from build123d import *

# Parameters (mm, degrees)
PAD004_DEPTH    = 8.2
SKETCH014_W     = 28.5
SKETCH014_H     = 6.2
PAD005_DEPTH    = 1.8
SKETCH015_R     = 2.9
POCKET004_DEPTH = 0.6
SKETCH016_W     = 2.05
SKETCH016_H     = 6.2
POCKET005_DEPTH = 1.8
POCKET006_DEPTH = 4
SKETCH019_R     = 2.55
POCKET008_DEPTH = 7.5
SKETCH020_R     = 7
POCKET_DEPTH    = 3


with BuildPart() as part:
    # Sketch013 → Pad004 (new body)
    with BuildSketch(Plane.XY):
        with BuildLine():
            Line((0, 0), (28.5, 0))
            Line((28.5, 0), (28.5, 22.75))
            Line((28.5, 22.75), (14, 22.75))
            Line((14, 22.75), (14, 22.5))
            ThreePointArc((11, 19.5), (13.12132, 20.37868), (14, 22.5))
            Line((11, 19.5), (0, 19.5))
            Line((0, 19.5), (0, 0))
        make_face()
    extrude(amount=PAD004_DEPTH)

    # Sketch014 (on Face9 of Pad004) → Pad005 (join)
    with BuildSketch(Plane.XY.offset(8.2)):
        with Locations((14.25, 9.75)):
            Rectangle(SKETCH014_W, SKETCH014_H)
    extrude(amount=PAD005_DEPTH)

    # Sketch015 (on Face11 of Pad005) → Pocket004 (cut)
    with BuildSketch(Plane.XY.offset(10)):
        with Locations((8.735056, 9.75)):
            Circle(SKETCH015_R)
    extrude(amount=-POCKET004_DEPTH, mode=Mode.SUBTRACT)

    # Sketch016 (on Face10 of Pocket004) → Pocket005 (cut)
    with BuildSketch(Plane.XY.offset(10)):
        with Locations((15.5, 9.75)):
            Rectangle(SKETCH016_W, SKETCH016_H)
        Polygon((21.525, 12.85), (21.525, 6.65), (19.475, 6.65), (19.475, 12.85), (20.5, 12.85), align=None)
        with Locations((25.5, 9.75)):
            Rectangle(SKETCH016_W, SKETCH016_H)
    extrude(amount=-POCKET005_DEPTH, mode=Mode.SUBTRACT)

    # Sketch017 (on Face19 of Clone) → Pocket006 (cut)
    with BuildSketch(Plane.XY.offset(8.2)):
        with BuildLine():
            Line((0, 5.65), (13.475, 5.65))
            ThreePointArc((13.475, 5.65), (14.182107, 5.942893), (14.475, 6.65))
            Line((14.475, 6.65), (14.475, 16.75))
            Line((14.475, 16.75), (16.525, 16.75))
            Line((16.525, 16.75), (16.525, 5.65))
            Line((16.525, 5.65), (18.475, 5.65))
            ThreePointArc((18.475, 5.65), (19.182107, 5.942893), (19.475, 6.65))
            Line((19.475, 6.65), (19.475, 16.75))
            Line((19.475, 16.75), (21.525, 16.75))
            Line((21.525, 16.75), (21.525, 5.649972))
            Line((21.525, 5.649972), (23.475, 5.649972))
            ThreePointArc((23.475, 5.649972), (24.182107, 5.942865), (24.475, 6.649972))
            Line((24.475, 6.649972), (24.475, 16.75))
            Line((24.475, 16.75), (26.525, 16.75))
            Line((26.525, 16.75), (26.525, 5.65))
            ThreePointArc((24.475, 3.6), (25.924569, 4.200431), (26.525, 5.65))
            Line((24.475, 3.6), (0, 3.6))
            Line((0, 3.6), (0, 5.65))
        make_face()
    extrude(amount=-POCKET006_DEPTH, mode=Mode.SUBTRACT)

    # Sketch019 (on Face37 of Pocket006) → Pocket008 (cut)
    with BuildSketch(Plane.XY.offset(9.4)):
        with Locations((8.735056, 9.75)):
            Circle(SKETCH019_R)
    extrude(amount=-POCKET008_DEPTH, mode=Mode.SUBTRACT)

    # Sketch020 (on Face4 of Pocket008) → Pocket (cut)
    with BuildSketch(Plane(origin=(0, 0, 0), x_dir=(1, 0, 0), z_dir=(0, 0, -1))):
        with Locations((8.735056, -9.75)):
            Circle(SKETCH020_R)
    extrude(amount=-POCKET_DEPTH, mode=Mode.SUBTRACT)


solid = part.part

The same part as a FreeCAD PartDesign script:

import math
import FreeCAD as App
import Part
import Sketcher
from FreeCAD import Vector
Q = App.Units.Quantity


def add_polygon(sketch, points):
    """Adds a closed chain of lines whose ends are joined by coincident constraints."""
    first, n = sketch.GeometryCount, len(points)
    for a, b in zip(points, points[1:] + points[:1]):
        sketch.addGeometry(Part.LineSegment(App.Vector(*a, 0), App.Vector(*b, 0)), False)
    for i in range(n):
        sketch.addConstraint(Sketcher.Constraint("Coincident", first + i, 2, first + (i + 1) % n, 1))

doc = App.newDocument("Part")
body = doc.addObject("PartDesign::Body", "Body")

sketch1 = body.newObject("Sketcher::SketchObject", "Sketch")
sketch1.AttachmentSupport = (doc.getObject("XY_Plane"), [""])
sketch1.MapMode = "FlatFace"
sketch1.addGeometry(Part.LineSegment(Vector(0, 0, 0), Vector(28.5, 0, 0)), False)
sketch1.addGeometry(Part.LineSegment(Vector(28.5, 0, 0), Vector(28.5, 22.75, 0)), False)
sketch1.addGeometry(Part.LineSegment(Vector(28.5, 22.75, 0), Vector(14, 22.75, 0)), False)
sketch1.addGeometry(Part.LineSegment(Vector(14, 22.75, 0), Vector(14, 22.5, 0)), False)
sketch1.addGeometry(Part.ArcOfCircle(Part.Circle(Vector(11, 22.5, 0), Vector(0, 0, 1), 3), math.radians(-90), math.radians(0)), False)
sketch1.addGeometry(Part.LineSegment(Vector(11, 19.5, 0), Vector(0, 19.5, 0)), False)
sketch1.addGeometry(Part.LineSegment(Vector(0, 19.5, 0), Vector(0, 0, 0)), False)
sketch1.addConstraint(Sketcher.Constraint("Coincident", 0, 2, 1, 1))
sketch1.addConstraint(Sketcher.Constraint("Coincident", 1, 2, 2, 1))
sketch1.addConstraint(Sketcher.Constraint("Coincident", 2, 2, 3, 1))
sketch1.addConstraint(Sketcher.Constraint("Tangent", 3, 2, 4, 2))
sketch1.addConstraint(Sketcher.Constraint("Tangent", 4, 1, 5, 1))
sketch1.addConstraint(Sketcher.Constraint("Coincident", 5, 2, 6, 1))
sketch1.addConstraint(Sketcher.Constraint("Coincident", 6, 2, 0, 1))
sketch1.addConstraint(Sketcher.Constraint("Horizontal", 0))
sketch1.addConstraint(Sketcher.Constraint("Vertical", 1))
sketch1.addConstraint(Sketcher.Constraint("Horizontal", 2))
sketch1.addConstraint(Sketcher.Constraint("Vertical", 3))
sketch1.addConstraint(Sketcher.Constraint("Horizontal", 5))
sketch1.addConstraint(Sketcher.Constraint("Vertical", 6))
sketch1.addConstraint(Sketcher.Constraint("Coincident", 6, 2, -1, 1))
sketch1.addConstraint(Sketcher.Constraint("Radius", 4, Q("3.000001 mm")))
sketch1.addConstraint(Sketcher.Constraint("DistanceX", 5, 2, 5, 1, Q("11 mm")))
sketch1.addConstraint(Sketcher.Constraint("DistanceX", 0, 1, 0, 2, Q("28.5 mm")))
sketch1.addConstraint(Sketcher.Constraint("DistanceY", 6, 2, 6, 1, Q("19.5 mm")))
sketch1.addConstraint(Sketcher.Constraint("DistanceY", 1, 1, 1, 2, Q("22.75 mm")))
pad1 = body.newObject("PartDesign::Pad", "Pad")
pad1.Profile = sketch1
pad1.Length = 8.2

sketch2 = body.newObject("Sketcher::SketchObject", "Sketch001")
sketch2.AttachmentSupport = (doc.getObject("XY_Plane"), [""])
sketch2.MapMode = "FlatFace"
sketch2.AttachmentOffset = App.Placement(Vector(0, 0, 8.2), App.Rotation())
add_polygon(sketch2, [(0, 13), (0, 7), (28, 7), (28, 13)])
sketch2.addConstraint(Sketcher.Constraint("Vertical", 0))
sketch2.addConstraint(Sketcher.Constraint("Horizontal", 1))
sketch2.addConstraint(Sketcher.Constraint("Vertical", 2))
sketch2.addConstraint(Sketcher.Constraint("Horizontal", 3))
sketch2.addConstraint(Sketcher.Constraint("PointOnObject", 0, 2, -2))
sketch2.addConstraint(Sketcher.Constraint("DistanceX", 1, 1, 1, 2, Q("28.5 mm")))
sketch2.addConstraint(Sketcher.Constraint("DistanceY", 0, 2, 0, 1, Q("6.2 mm")))
sketch2.addConstraint(Sketcher.Constraint("DistanceY", -1, 1, 0, 2, Q("6.65 mm")))
pad2 = body.newObject("PartDesign::Pad", "Pad001")
pad2.Profile = sketch2
pad2.Length = 1.8

sketch3 = body.newObject("Sketcher::SketchObject", "Sketch002")
sketch3.AttachmentSupport = (doc.getObject("XY_Plane"), [""])
sketch3.MapMode = "FlatFace"
sketch3.AttachmentOffset = App.Placement(Vector(0, 0, 10), App.Rotation())
sketch3.addGeometry(Part.Circle(Vector(8.7, 9.8, 0), Vector(0, 0, 1), 2.9), False)
sketch3.addConstraint(Sketcher.Constraint("Diameter", 0, Q("5.8 mm")))
sketch3.addConstraint(Sketcher.Constraint("DistanceY", -1, 1, 0, 3, Q("9.75 mm")))
sketch3.addConstraint(Sketcher.Constraint("DistanceX", -1, 1, 0, 3, Q("8.735056 mm")))
pocket1 = body.newObject("PartDesign::Pocket", "Pocket")
pocket1.Profile = sketch3
pocket1.Length = 0.6

sketch4 = body.newObject("Sketcher::SketchObject", "Sketch003")
sketch4.AttachmentSupport = (doc.getObject("XY_Plane"), [""])
sketch4.MapMode = "FlatFace"
sketch4.AttachmentOffset = App.Placement(Vector(0, 0, 10), App.Rotation())
add_polygon(sketch4, [(14.5, 12.8), (14.5, 6.7), (16.5, 6.7), (16.5, 12.8)])
add_polygon(sketch4, [(21.5, 6.7), (21.5, 12.8), (19.5, 12.8), (19.5, 6.7)])
add_polygon(sketch4, [(24.5, 12.8), (24.5, 6.7), (26.5, 6.7), (26.5, 12.8)])
sketch4.addConstraint(Sketcher.Constraint("Vertical", 0))
sketch4.addConstraint(Sketcher.Constraint("Horizontal", 1))
sketch4.addConstraint(Sketcher.Constraint("Vertical", 2))
sketch4.addConstraint(Sketcher.Constraint("Horizontal", 3))
sketch4.addConstraint(Sketcher.Constraint("Vertical", 4))
sketch4.addConstraint(Sketcher.Constraint("Horizontal", 5))
sketch4.addConstraint(Sketcher.Constraint("Vertical", 6))
sketch4.addConstraint(Sketcher.Constraint("Horizontal", 7))
sketch4.addConstraint(Sketcher.Constraint("Vertical", 8))
sketch4.addConstraint(Sketcher.Constraint("Horizontal", 9))
sketch4.addConstraint(Sketcher.Constraint("Vertical", 10))
sketch4.addConstraint(Sketcher.Constraint("Horizontal", 11))
sketch4.addConstraint(Sketcher.Constraint("Horizontal", 3, 2, 4, 2))
sketch4.addConstraint(Sketcher.Constraint("Horizontal", 1, 2, 6, 2))
sketch4.addConstraint(Sketcher.Constraint("Horizontal", 7, 2, 8, 2))
sketch4.addConstraint(Sketcher.Constraint("Horizontal", 5, 2, 10, 2))
sketch4.addConstraint(Sketcher.Constraint("Equal", 3, 5))
sketch4.addConstraint(Sketcher.Constraint("Equal", 7, 9))
sketch4.addConstraint(Sketcher.Constraint("DistanceY", 0, 2, 0, 1, Q("6.2 mm")))
sketch4.addConstraint(Sketcher.Constraint("DistanceX", 2, 2, 4, 2, Q("5 mm")))
sketch4.addConstraint(Sketcher.Constraint("DistanceX", 6, 2, 8, 2, Q("5 mm")))
sketch4.addConstraint(Sketcher.Constraint("DistanceX", 1, 1, 1, 2, Q("2.05 mm")))
sketch4.addConstraint(Sketcher.Constraint("DistanceY", -1, 1, 0, 2, Q("6.65 mm")))
sketch4.addConstraint(Sketcher.Constraint("DistanceX", -1, 1, 0, 2, Q("14.475 mm")))
pocket2 = body.newObject("PartDesign::Pocket", "Pocket001")
pocket2.Profile = sketch4
pocket2.Length = 1.8

sketch5 = body.newObject("Sketcher::SketchObject", "Sketch004")
sketch5.AttachmentSupport = (doc.getObject("XY_Plane"), [""])
sketch5.MapMode = "FlatFace"
sketch5.AttachmentOffset = App.Placement(Vector(0, 0, 8.2), App.Rotation())
sketch5.addGeometry(Part.LineSegment(Vector(13.5, 5.7, 0), Vector(0, 5.7, 0)), False)
sketch5.addGeometry(Part.LineSegment(Vector(0, 5.7, 0), Vector(0, 3.6, 0)), False)
sketch5.addGeometry(Part.LineSegment(Vector(0, 3.6, 0), Vector(24.5, 3.6, 0)), False)
sketch5.addGeometry(Part.ArcOfCircle(Part.Circle(Vector(24.5, 5.6, 0), Vector(0, 0, 1), 2), math.radians(-90), math.radians(0)), False)
sketch5.addGeometry(Part.LineSegment(Vector(26.5, 5.7, 0), Vector(26.5, 16.8, 0)), False)
sketch5.addGeometry(Part.LineSegment(Vector(26.5, 16.8, 0), Vector(24.5, 16.8, 0)), False)
sketch5.addGeometry(Part.LineSegment(Vector(24.5, 16.8, 0), Vector(24.5, 6.6, 0)), False)
sketch5.addGeometry(Part.ArcOfCircle(Part.Circle(Vector(23.5, 6.6, 0), Vector(0, 0, 1), 1), math.radians(-90), math.radians(0)), False)
sketch5.addGeometry(Part.LineSegment(Vector(23.5, 5.6, 0), Vector(21.5, 5.6, 0)), False)
sketch5.addGeometry(Part.LineSegment(Vector(21.5, 5.6, 0), Vector(21.5, 16.8, 0)), False)
sketch5.addGeometry(Part.LineSegment(Vector(21.5, 16.8, 0), Vector(19.5, 16.8, 0)), False)
sketch5.addGeometry(Part.LineSegment(Vector(19.5, 16.8, 0), Vector(19.5, 6.7, 0)), False)
sketch5.addGeometry(Part.ArcOfCircle(Part.Circle(Vector(18.5, 6.6, 0), Vector(0, 0, 1), 1), math.radians(-90), math.radians(0)), False)
sketch5.addGeometry(Part.LineSegment(Vector(18.5, 5.7, 0), Vector(16.5, 5.7, 0)), False)
sketch5.addGeometry(Part.LineSegment(Vector(16.5, 5.7, 0), Vector(16.5, 16.8, 0)), False)
sketch5.addGeometry(Part.LineSegment(Vector(16.5, 16.8, 0), Vector(14.5, 16.8, 0)), False)
sketch5.addGeometry(Part.LineSegment(Vector(14.5, 16.8, 0), Vector(14.5, 6.7, 0)), False)
sketch5.addGeometry(Part.ArcOfCircle(Part.Circle(Vector(13.5, 6.6, 0), Vector(0, 0, 1), 1), math.radians(-90), math.radians(0)), False)
sketch5.addConstraint(Sketcher.Constraint("Coincident", 0, 2, 1, 1))
sketch5.addConstraint(Sketcher.Constraint("Coincident", 1, 2, 2, 1))
sketch5.addConstraint(Sketcher.Constraint("Tangent", 2, 2, 3, 1))
sketch5.addConstraint(Sketcher.Constraint("Tangent", 3, 2, 4, 1))
sketch5.addConstraint(Sketcher.Constraint("Coincident", 4, 2, 5, 1))
sketch5.addConstraint(Sketcher.Constraint("Coincident", 5, 2, 6, 1))
sketch5.addConstraint(Sketcher.Constraint("Tangent", 6, 2, 7, 2))
sketch5.addConstraint(Sketcher.Constraint("Tangent", 7, 1, 8, 1))
sketch5.addConstraint(Sketcher.Constraint("Coincident", 8, 2, 9, 1))
sketch5.addConstraint(Sketcher.Constraint("Coincident", 9, 2, 10, 1))
sketch5.addConstraint(Sketcher.Constraint("Coincident", 10, 2, 11, 1))
sketch5.addConstraint(Sketcher.Constraint("Tangent", 11, 2, 12, 2))
sketch5.addConstraint(Sketcher.Constraint("Tangent", 12, 1, 13, 1))
sketch5.addConstraint(Sketcher.Constraint("Coincident", 13, 2, 14, 1))
sketch5.addConstraint(Sketcher.Constraint("Coincident", 14, 2, 15, 1))
sketch5.addConstraint(Sketcher.Constraint("Coincident", 15, 2, 16, 1))
sketch5.addConstraint(Sketcher.Constraint("Tangent", 16, 2, 17, 2))
sketch5.addConstraint(Sketcher.Constraint("Tangent", 17, 1, 0, 1))
sketch5.addConstraint(Sketcher.Constraint("Horizontal", 0))
sketch5.addConstraint(Sketcher.Constraint("Vertical", 1))
sketch5.addConstraint(Sketcher.Constraint("Horizontal", 2))
sketch5.addConstraint(Sketcher.Constraint("Vertical", 4))
sketch5.addConstraint(Sketcher.Constraint("Horizontal", 5))
sketch5.addConstraint(Sketcher.Constraint("Vertical", 6))
sketch5.addConstraint(Sketcher.Constraint("Horizontal", 8))
sketch5.addConstraint(Sketcher.Constraint("Vertical", 9))
sketch5.addConstraint(Sketcher.Constraint("Horizontal", 10))
sketch5.addConstraint(Sketcher.Constraint("Vertical", 11))
sketch5.addConstraint(Sketcher.Constraint("Horizontal", 13))
sketch5.addConstraint(Sketcher.Constraint("Vertical", 14))
sketch5.addConstraint(Sketcher.Constraint("Horizontal", 15))
sketch5.addConstraint(Sketcher.Constraint("Vertical", 16))
sketch5.addConstraint(Sketcher.Constraint("Equal", 7, 12))
sketch5.addConstraint(Sketcher.Constraint("Equal", 12, 17))
sketch5.addConstraint(Sketcher.Constraint("PointOnObject", 0, 2, -2))
sketch5.addConstraint(Sketcher.Constraint("Horizontal", 12, 3, 17, 3))
sketch5.addConstraint(Sketcher.Constraint("Horizontal", 3, 3, 0, 2))
sketch5.addConstraint(Sketcher.Constraint("Horizontal", 5, 2, 9, 2))
sketch5.addConstraint(Sketcher.Constraint("Horizontal", 10, 2, 14, 2))
sketch5.addConstraint(Sketcher.Constraint("Vertical", 2, 2, 5, 2))
sketch5.addConstraint(Sketcher.Constraint("Equal", 5, 10))
sketch5.addConstraint(Sketcher.Constraint("Equal", 8, 13))
sketch5.addConstraint(Sketcher.Constraint("Equal", 10, 15))
sketch5.addConstraint(Sketcher.Constraint("Radius", 7, Q("0.999999 mm")))
sketch5.addConstraint(Sketcher.Constraint("Radius", 3, Q("2.05 mm")))
sketch5.addConstraint(Sketcher.Constraint("DistanceY", 4, 1, 4, 2, Q("11.1 mm")))
sketch5.addConstraint(Sketcher.Constraint("DistanceX", 12, 3, 7, 3, Q("5 mm")))
sketch5.addConstraint(Sketcher.Constraint("DistanceY", -1, 1, 1, 2, Q("3.6 mm")))
sketch5.addConstraint(Sketcher.Constraint("DistanceX", 0, 2, 0, 1, Q("13.475 mm")))
sketch5.addConstraint(Sketcher.Constraint("DistanceY", 6, 2, 6, 1, Q("10.100028 mm")))
pocket3 = body.newObject("PartDesign::Pocket", "Pocket002")
pocket3.Profile = sketch5
pocket3.Length = 4

sketch6 = body.newObject("Sketcher::SketchObject", "Sketch005")
sketch6.AttachmentSupport = (doc.getObject("XY_Plane"), [""])
sketch6.MapMode = "FlatFace"
sketch6.AttachmentOffset = App.Placement(Vector(0, 0, 9.4), App.Rotation())
sketch6.addGeometry(Part.Circle(Vector(8.7, 9.8, 0), Vector(0, 0, 1), 2.5), False)
sketch6.addConstraint(Sketcher.Constraint("Diameter", 0, Q("5.1 mm")))
sketch6.addConstraint(Sketcher.Constraint("DistanceY", -1, 1, 0, 3, Q("9.75 mm")))
sketch6.addConstraint(Sketcher.Constraint("DistanceX", -1, 1, 0, 3, Q("8.735056 mm")))
pocket4 = body.newObject("PartDesign::Pocket", "Pocket003")
pocket4.Profile = sketch6
pocket4.Length = 7.5

sketch7 = body.newObject("Sketcher::SketchObject", "Sketch006")
sketch7.AttachmentSupport = (doc.getObject("XY_Plane"), [""])
sketch7.MapMode = "FlatFace"
sketch7.addGeometry(Part.Circle(Vector(9, 10, 0), Vector(0, 0, 1), 7), False)
sketch7.addConstraint(Sketcher.Constraint("Diameter", 0, Q("14 mm")))
sketch7.addConstraint(Sketcher.Constraint("DistanceY", -1, 1, 0, 3, Q("9.75 mm")))
sketch7.addConstraint(Sketcher.Constraint("DistanceX", -1, 1, 0, 3, Q("8.735056 mm")))
pocket5 = body.newObject("PartDesign::Pocket", "Pocket004")
pocket5.Profile = sketch7
pocket5.Length = 3
pocket5.Reversed = True

doc.recompute()
